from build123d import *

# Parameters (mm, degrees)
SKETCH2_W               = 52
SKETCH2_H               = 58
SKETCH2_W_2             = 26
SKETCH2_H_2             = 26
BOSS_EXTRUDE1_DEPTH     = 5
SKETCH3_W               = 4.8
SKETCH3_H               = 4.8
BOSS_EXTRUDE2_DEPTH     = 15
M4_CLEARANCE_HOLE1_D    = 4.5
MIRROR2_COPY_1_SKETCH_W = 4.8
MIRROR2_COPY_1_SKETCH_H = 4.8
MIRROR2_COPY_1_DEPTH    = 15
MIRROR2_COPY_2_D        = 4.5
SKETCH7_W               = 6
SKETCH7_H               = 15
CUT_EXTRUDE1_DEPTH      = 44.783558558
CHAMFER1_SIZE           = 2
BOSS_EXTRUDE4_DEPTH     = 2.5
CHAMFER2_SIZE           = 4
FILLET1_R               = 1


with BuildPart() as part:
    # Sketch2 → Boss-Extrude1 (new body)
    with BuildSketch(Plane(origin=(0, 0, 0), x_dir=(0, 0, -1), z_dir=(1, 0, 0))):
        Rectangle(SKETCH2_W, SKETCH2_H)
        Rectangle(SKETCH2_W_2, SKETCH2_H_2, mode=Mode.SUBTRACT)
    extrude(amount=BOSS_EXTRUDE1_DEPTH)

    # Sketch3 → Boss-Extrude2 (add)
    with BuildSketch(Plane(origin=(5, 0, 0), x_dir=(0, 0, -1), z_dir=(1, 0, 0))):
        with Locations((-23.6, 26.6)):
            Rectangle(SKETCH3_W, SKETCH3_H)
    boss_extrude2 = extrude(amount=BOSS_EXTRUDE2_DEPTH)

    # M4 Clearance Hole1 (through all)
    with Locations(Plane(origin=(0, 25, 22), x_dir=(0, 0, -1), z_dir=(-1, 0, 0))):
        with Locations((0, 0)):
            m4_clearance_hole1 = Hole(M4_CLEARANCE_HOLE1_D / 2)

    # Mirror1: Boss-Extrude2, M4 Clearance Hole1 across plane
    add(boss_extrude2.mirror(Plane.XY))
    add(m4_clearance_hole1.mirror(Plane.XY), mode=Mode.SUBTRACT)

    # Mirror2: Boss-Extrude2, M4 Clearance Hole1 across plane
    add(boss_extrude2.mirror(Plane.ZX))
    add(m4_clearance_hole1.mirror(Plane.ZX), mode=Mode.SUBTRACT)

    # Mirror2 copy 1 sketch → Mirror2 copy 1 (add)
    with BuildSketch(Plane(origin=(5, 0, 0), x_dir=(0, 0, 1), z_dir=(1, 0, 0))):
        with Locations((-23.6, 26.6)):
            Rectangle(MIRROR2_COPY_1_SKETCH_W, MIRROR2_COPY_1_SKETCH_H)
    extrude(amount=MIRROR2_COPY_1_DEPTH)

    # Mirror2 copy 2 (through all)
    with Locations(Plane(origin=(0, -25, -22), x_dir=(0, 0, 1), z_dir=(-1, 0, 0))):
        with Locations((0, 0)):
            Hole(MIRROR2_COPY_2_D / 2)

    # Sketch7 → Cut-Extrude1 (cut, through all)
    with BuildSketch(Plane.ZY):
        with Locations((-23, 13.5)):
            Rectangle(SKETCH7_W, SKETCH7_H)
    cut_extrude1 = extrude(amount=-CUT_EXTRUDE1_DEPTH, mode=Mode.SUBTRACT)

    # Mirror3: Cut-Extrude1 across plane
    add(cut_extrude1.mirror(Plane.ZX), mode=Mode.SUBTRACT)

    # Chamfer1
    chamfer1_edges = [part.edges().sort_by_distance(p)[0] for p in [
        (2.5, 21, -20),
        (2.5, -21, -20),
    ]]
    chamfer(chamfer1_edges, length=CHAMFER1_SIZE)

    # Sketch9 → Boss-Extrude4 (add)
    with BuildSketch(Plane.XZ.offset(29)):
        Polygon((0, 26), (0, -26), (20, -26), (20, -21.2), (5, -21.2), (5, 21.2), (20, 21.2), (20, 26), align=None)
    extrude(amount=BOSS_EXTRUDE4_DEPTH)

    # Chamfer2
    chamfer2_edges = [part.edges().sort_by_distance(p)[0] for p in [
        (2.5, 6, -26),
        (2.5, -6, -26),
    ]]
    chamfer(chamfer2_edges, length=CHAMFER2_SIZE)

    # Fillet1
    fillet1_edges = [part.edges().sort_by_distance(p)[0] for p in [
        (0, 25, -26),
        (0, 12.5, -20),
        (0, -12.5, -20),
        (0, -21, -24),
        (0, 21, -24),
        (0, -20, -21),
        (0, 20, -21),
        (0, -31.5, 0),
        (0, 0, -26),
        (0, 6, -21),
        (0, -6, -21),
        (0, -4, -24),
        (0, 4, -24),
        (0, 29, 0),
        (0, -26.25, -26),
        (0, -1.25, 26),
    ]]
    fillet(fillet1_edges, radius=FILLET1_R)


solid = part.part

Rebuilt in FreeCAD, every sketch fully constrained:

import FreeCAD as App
import Part
import Sketcher


def edges_at(feature, points):
    """Names of the edges that pass closest to the given points."""
    edges = feature.Shape.Edges
    near = lambda p: min(range(len(edges)), key=lambda i: edges[i].distToShape(Part.Vertex(*p))[0])
    return sorted({f"Edge{near(p) + 1}" for p in points})


def add_polygon(sketch, points):
    """Adds a closed chain of lines whose ends are joined by coincident constraints."""
    first, n = sketch.GeometryCount, len(points)
    for a, b in zip(points, points[1:] + points[:1]):
        sketch.addGeometry(Part.LineSegment(App.Vector(*a, 0), App.Vector(*b, 0)), False)
    for i in range(n):
        sketch.addConstraint(Sketcher.Constraint("Coincident", first + i, 2, first + (i + 1) % n, 1))

doc = App.newDocument("Part")
body = doc.addObject("PartDesign::Body", "Body")

# Sketch on YZ plane
sketch1 = doc.addObject("Sketcher::SketchObject", "Sketch")
body.addObject(sketch1)
sketch1.AttachmentSupport = (doc.YZ_Plane, [""])
sketch1.MapMode = "FlatFace"
add_polygon(sketch1, [(29, 26), (-29, 26), (-29, -26), (29, -26)])  # lines 0-3
add_polygon(sketch1, [(-13, -13), (-13, 13), (13, 13), (13, -13)])  # lines 4-7
sketch1.addConstraint([
    Sketcher.Constraint("Horizontal", 0),
    Sketcher.Constraint("Vertical", 1),
    Sketcher.Constraint("Horizontal", 2),
    Sketcher.Constraint("Vertical", 3),
    Sketcher.Constraint("Vertical", 4),
    Sketcher.Constraint("Horizontal", 5),
    Sketcher.Constraint("Vertical", 6),
    Sketcher.Constraint("Horizontal", 7),
    Sketcher.Constraint("Symmetric", 0, 2, 2, 2, -1, 1),
    Sketcher.Constraint("Symmetric", 4, 2, 6, 2, -1, 1),
    Sketcher.Constraint("Equal", 7, 4),
    Sketcher.Constraint("DistanceX", 0, 2, 0, 1, 58.0),
    Sketcher.Constraint("DistanceX", 5, 1, 5, 2, 26.0),
    Sketcher.Constraint("DistanceY", 1, 2, 1, 1, 52.0),
])
pad1 = doc.addObject("PartDesign::Pad", "Pad")
body.addObject(pad1)
pad1.Profile = sketch1
pad1.Length = 5

# Sketch on YZ plane
sketch2 = doc.addObject("Sketcher::SketchObject", "Sketch001")
body.addObject(sketch2)
sketch2.AttachmentSupport = (doc.YZ_Plane, [""])
sketch2.MapMode = "FlatFace"
sketch2.AttachmentOffset = App.Placement(App.Vector(0, 0, 5), App.Rotation())
add_polygon(sketch2, [(29, 26), (24.2, 26), (24.2, 21.2), (29, 21.2)])  # lines 0-3
sketch2.addConstraint([
    Sketcher.Constraint("Horizontal", 0),
    Sketcher.Constraint("Vertical", 1),
    Sketcher.Constraint("Horizontal", 2),
    Sketcher.Constraint("Vertical", 3),
    Sketcher.Constraint("Equal", 2, 1),
    Sketcher.Constraint("DistanceX", 0, 2, 0, 1, 4.8),
    Sketcher.Constraint("DistanceY", -1, 1, 0, 2, 26.0),
    Sketcher.Constraint("DistanceX", -1, 1, 2, 2, 29.0),
])
pad2 = doc.addObject("PartDesign::Pad", "Pad001")
body.addObject(pad2)
pad2.Profile = sketch2
pad2.Length = 15

# Sketch on YZ plane
sketch3 = doc.addObject("Sketcher::SketchObject", "Sketch002")
body.addObject(sketch3)
sketch3.AttachmentSupport = (doc.YZ_Plane, [""])
sketch3.MapMode = "FlatFace"
sketch3.addGeometry(Part.Circle(App.Vector(25, 22, 0), App.Vector(0, 0, 1), 2.2), False)
sketch3.addConstraint([
    Sketcher.Constraint("Diameter", 0, 4.5),
    Sketcher.Constraint("DistanceX", -1, 1, 0, 3, 25.0),
    Sketcher.Constraint("DistanceY", -1, 1, 0, 3, 22.0),
])
doc.recompute()
hole = doc.addObject("PartDesign::Hole", "Hole")
body.addObject(hole)
hole.Profile = sketch3
hole.ThreadType = "None"
hole.Diameter = 4.5
hole.DepthType = "ThroughAll"
hole.Reversed = True
doc.recompute()

mirrored = doc.addObject("PartDesign::Mirrored", "Mirrored")
body.addObject(mirrored)
mirrored.Originals = [pad2, hole]
mirrored.MirrorPlane = (doc.XY_Plane, [""])
body.Tip = mirrored
doc.recompute()

mirrored2 = doc.addObject("PartDesign::Mirrored", "Mirrored001")
body.addObject(mirrored2)
mirrored2.Originals = [pad2, hole]
mirrored2.MirrorPlane = (doc.XZ_Plane, [""])
body.Tip = mirrored2

# Sketch on YZ plane
sketch4 = doc.addObject("Sketcher::SketchObject", "Sketch003")
body.addObject(sketch4)
sketch4.AttachmentSupport = (doc.YZ_Plane, [""])
sketch4.MapMode = "FlatFace"
sketch4.AttachmentOffset = App.Placement(App.Vector(0, 0, 5), App.Rotation())
add_polygon(sketch4, [(-29, -26), (-24.2, -26), (-24.2, -21.2), (-29, -21.2)])  # lines 0-3
sketch4.addConstraint([
    Sketcher.Constraint("Horizontal", 0),
    Sketcher.Constraint("Vertical", 1),
    Sketcher.Constraint("Horizontal", 2),
    Sketcher.Constraint("Vertical", 3),
    Sketcher.Constraint("Equal", 2, 1),
    Sketcher.Constraint("DistanceX", 0, 1, 0, 2, 4.8),
    Sketcher.Constraint("DistanceY", 0, 2, -1, 1, 26.0),
    Sketcher.Constraint("DistanceX", 2, 2, -1, 1, 29.0),
])
pad3 = doc.addObject("PartDesign::Pad", "Pad002")
body.addObject(pad3)
pad3.Profile = sketch4
pad3.Length = 15

# Sketch on YZ plane
sketch5 = doc.addObject("Sketcher::SketchObject", "Sketch004")
body.addObject(sketch5)
sketch5.AttachmentSupport = (doc.YZ_Plane, [""])
sketch5.MapMode = "FlatFace"
sketch5.addGeometry(Part.Circle(App.Vector(-25, -22, 0), App.Vector(0, 0, 1), 2.2), False)
sketch5.addConstraint([
    Sketcher.Constraint("Diameter", 0, 4.5),
    Sketcher.Constraint("DistanceX", 0, 3, -1, 1, 25.0),
    Sketcher.Constraint("DistanceY", 0, 3, -1, 1, 22.0),
])
doc.recompute()
hole2 = doc.addObject("PartDesign::Hole", "Hole001")
body.addObject(hole2)
hole2.Profile = sketch5
hole2.ThreadType = "None"
hole2.Diameter = 4.5
hole2.DepthType = "ThroughAll"
hole2.Reversed = True

# Sketch on YZ plane
sketch6 = doc.addObject("Sketcher::SketchObject", "Sketch005")
body.addObject(sketch6)
sketch6.AttachmentSupport = (doc.YZ_Plane, [""])
sketch6.MapMode = "FlatFace"
add_polygon(sketch6, [(21, -26), (6, -26), (6, -20), (21, -20)])  # lines 0-3
sketch6.addConstraint([
    Sketcher.Constraint("Horizontal", 0),
    Sketcher.Constraint("Vertical", 1),
    Sketcher.Constraint("Horizontal", 2),
    Sketcher.Constraint("Vertical", 3),
    Sketcher.Constraint("DistanceX", 0, 2, 0, 1, 15.0),
    Sketcher.Constraint("DistanceY", 1, 1, 1, 2, 6.0),
    Sketcher.Constraint("DistanceX", -1, 1, 0, 2, 6.0),
    Sketcher.Constraint("DistanceY", 0, 2, -1, 1, 26.0),
])
pocket1 = doc.addObject("PartDesign::Pocket", "Pocket")
body.addObject(pocket1)
pocket1.Profile = sketch6
pocket1.Type = "ThroughAll"
pocket1.Reversed = True
doc.recompute()

mirrored3 = doc.addObject("PartDesign::Mirrored", "Mirrored002")
body.addObject(mirrored3)
mirrored3.Originals = [pocket1]
mirrored3.MirrorPlane = (doc.XZ_Plane, [""])
body.Tip = mirrored3
doc.recompute()

chamfer = doc.addObject("PartDesign::Chamfer", "Chamfer")
body.addObject(chamfer)
chamfer.Base = (mirrored3, edges_at(mirrored3, [(2.5, 21, -20), (2.5, -21, -20)]))
chamfer.Size = 2

# Sketch on XZ plane
sketch7 = doc.addObject("Sketcher::SketchObject", "Sketch006")
body.addObject(sketch7)
sketch7.AttachmentSupport = (doc.XZ_Plane, [""])
sketch7.MapMode = "FlatFace"
sketch7.AttachmentOffset = App.Placement(App.Vector(0, 0, 29), App.Rotation())
add_polygon(sketch7, [(0, 26), (0, -26), (20, -26), (20, -21.2), (5, -21.2), (5, 21.2), (20, 21.2), (20, 26)])  # lines 0-7
sketch7.addConstraint([
    Sketcher.Constraint("Vertical", 0),
    Sketcher.Constraint("Horizontal", 1),
    Sketcher.Constraint("Vertical", 2),
    Sketcher.Constraint("Horizontal", 3),
    Sketcher.Constraint("Vertical", 4),
    Sketcher.Constraint("Horizontal", 5),
    Sketcher.Constraint("Vertical", 6),
    Sketcher.Constraint("Horizontal", 7),
    Sketcher.Constraint("Symmetric", 0, 2, 7, 2, -1, 1),
    Sketcher.Constraint("Symmetric", 2, 2, 5, 2, -1),
    Sketcher.Constraint("DistanceX", 1, 1, 1, 2, 20.0),
    Sketcher.Constraint("DistanceX", 3, 2, 3, 1, 15.0),
    Sketcher.Constraint("DistanceY", 0, 2, 0, 1, 52.0),
    Sketcher.Constraint("DistanceY", 2, 1, 2, 2, 4.8),
])
pad4 = doc.addObject("PartDesign::Pad", "Pad003")
body.addObject(pad4)
pad4.Profile = sketch7
pad4.Length = 2.5
doc.recompute()

chamfer2 = doc.addObject("PartDesign::Chamfer", "Chamfer001")
body.addObject(chamfer2)
chamfer2.Base = (pad4, edges_at(pad4, [(2.5, 6, -26), (2.5, -6, -26)]))
chamfer2.Size = 4
doc.recompute()

fillet = doc.addObject("PartDesign::Fillet", "Fillet")
body.addObject(fillet)
fillet.Base = (chamfer2, edges_at(chamfer2, [
    (0, 25, -26),
    (0, 12.5, -20),
    (0, -12.5, -20),
    (0, -21, -24),
    (0, 21, -24),
    (0, -20, -21),
    (0, 20, -21),
    (0, -31.5, 0),
    (0, 0, -26),
    (0, 6, -21),
    (0, -6, -21),
    (0, -4, -24),
    (0, 4, -24),
    (0, 29, 0),
    (0, -26.25, -26),
    (0, -1.25, 26),
]))
fillet.Radius = 1

doc.recompute()
